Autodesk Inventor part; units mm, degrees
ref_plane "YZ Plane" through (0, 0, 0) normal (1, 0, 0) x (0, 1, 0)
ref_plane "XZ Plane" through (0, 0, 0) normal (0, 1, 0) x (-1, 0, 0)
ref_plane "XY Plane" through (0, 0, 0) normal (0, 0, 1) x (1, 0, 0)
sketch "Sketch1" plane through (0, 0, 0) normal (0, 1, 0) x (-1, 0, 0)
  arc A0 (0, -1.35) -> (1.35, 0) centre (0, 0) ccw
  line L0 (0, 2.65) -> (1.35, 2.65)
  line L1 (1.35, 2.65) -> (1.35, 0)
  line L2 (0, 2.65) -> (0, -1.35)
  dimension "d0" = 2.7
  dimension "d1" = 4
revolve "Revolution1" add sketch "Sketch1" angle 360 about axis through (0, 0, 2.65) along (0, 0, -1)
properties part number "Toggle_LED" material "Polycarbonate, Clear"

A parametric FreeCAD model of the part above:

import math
import FreeCAD as App
import Part
import Sketcher
from FreeCAD import Vector
Q = App.Units.Quantity

doc = App.newDocument("Part")
body = doc.addObject("PartDesign::Body", "Body")

# Sketch on XZ plane
sketch1 = body.newObject("Sketcher::SketchObject", "Sketch")
sketch1.AttachmentSupport = (doc.getObject("XZ_Plane"), [""])
sketch1.MapMode = "FlatFace"
sketch1.addGeometry(Part.LineSegment(Vector(0, 2.6, 0), Vector(0, -1.4, 0)), False)
sketch1.addGeometry(Part.ArcOfCircle(Part.Circle(Vector(0, 0, 0), Vector(0, 0, 1), 1.4), math.radians(180), math.radians(270)), False)
sketch1.addGeometry(Part.LineSegment(Vector(-1.4, 0, 0), Vector(-1.4, 2.6, 0)), False)
sketch1.addGeometry(Part.LineSegment(Vector(-1.4, 2.6, 0), Vector(0, 2.6, 0)), False)
sketch1.addConstraint(Sketcher.Constraint("Coincident", 0, 2, 1, 2))
sketch1.addConstraint(Sketcher.Constraint("Tangent", 1, 1, 2, 1))
sketch1.addConstraint(Sketcher.Constraint("Coincident", 2, 2, 3, 1))
sketch1.addConstraint(Sketcher.Constraint("Coincident", 3, 2, 0, 1))
sketch1.addConstraint(Sketcher.Constraint("Vertical", 0))
sketch1.addConstraint(Sketcher.Constraint("Vertical", 2))
sketch1.addConstraint(Sketcher.Constraint("Horizontal", 3))
sketch1.addConstraint(Sketcher.Constraint("Coincident", 1, 3, -1, 1))
sketch1.addConstraint(Sketcher.Constraint("PointOnObject", 0, 2, -2))
sketch1.addConstraint(Sketcher.Constraint("DistanceY", 0, 2, 0, 1, Q("4 mm")))
sketch1.addConstraint(Sketcher.Constraint("Radius", 1, Q("1.35 mm")))
revolution = body.newObject("PartDesign::Revolution", "Revolution")
revolution.Profile = sketch1
revolution.ReferenceAxis = (sketch1, ["V_Axis"])
revolution.Angle = 360

doc.recompute()
